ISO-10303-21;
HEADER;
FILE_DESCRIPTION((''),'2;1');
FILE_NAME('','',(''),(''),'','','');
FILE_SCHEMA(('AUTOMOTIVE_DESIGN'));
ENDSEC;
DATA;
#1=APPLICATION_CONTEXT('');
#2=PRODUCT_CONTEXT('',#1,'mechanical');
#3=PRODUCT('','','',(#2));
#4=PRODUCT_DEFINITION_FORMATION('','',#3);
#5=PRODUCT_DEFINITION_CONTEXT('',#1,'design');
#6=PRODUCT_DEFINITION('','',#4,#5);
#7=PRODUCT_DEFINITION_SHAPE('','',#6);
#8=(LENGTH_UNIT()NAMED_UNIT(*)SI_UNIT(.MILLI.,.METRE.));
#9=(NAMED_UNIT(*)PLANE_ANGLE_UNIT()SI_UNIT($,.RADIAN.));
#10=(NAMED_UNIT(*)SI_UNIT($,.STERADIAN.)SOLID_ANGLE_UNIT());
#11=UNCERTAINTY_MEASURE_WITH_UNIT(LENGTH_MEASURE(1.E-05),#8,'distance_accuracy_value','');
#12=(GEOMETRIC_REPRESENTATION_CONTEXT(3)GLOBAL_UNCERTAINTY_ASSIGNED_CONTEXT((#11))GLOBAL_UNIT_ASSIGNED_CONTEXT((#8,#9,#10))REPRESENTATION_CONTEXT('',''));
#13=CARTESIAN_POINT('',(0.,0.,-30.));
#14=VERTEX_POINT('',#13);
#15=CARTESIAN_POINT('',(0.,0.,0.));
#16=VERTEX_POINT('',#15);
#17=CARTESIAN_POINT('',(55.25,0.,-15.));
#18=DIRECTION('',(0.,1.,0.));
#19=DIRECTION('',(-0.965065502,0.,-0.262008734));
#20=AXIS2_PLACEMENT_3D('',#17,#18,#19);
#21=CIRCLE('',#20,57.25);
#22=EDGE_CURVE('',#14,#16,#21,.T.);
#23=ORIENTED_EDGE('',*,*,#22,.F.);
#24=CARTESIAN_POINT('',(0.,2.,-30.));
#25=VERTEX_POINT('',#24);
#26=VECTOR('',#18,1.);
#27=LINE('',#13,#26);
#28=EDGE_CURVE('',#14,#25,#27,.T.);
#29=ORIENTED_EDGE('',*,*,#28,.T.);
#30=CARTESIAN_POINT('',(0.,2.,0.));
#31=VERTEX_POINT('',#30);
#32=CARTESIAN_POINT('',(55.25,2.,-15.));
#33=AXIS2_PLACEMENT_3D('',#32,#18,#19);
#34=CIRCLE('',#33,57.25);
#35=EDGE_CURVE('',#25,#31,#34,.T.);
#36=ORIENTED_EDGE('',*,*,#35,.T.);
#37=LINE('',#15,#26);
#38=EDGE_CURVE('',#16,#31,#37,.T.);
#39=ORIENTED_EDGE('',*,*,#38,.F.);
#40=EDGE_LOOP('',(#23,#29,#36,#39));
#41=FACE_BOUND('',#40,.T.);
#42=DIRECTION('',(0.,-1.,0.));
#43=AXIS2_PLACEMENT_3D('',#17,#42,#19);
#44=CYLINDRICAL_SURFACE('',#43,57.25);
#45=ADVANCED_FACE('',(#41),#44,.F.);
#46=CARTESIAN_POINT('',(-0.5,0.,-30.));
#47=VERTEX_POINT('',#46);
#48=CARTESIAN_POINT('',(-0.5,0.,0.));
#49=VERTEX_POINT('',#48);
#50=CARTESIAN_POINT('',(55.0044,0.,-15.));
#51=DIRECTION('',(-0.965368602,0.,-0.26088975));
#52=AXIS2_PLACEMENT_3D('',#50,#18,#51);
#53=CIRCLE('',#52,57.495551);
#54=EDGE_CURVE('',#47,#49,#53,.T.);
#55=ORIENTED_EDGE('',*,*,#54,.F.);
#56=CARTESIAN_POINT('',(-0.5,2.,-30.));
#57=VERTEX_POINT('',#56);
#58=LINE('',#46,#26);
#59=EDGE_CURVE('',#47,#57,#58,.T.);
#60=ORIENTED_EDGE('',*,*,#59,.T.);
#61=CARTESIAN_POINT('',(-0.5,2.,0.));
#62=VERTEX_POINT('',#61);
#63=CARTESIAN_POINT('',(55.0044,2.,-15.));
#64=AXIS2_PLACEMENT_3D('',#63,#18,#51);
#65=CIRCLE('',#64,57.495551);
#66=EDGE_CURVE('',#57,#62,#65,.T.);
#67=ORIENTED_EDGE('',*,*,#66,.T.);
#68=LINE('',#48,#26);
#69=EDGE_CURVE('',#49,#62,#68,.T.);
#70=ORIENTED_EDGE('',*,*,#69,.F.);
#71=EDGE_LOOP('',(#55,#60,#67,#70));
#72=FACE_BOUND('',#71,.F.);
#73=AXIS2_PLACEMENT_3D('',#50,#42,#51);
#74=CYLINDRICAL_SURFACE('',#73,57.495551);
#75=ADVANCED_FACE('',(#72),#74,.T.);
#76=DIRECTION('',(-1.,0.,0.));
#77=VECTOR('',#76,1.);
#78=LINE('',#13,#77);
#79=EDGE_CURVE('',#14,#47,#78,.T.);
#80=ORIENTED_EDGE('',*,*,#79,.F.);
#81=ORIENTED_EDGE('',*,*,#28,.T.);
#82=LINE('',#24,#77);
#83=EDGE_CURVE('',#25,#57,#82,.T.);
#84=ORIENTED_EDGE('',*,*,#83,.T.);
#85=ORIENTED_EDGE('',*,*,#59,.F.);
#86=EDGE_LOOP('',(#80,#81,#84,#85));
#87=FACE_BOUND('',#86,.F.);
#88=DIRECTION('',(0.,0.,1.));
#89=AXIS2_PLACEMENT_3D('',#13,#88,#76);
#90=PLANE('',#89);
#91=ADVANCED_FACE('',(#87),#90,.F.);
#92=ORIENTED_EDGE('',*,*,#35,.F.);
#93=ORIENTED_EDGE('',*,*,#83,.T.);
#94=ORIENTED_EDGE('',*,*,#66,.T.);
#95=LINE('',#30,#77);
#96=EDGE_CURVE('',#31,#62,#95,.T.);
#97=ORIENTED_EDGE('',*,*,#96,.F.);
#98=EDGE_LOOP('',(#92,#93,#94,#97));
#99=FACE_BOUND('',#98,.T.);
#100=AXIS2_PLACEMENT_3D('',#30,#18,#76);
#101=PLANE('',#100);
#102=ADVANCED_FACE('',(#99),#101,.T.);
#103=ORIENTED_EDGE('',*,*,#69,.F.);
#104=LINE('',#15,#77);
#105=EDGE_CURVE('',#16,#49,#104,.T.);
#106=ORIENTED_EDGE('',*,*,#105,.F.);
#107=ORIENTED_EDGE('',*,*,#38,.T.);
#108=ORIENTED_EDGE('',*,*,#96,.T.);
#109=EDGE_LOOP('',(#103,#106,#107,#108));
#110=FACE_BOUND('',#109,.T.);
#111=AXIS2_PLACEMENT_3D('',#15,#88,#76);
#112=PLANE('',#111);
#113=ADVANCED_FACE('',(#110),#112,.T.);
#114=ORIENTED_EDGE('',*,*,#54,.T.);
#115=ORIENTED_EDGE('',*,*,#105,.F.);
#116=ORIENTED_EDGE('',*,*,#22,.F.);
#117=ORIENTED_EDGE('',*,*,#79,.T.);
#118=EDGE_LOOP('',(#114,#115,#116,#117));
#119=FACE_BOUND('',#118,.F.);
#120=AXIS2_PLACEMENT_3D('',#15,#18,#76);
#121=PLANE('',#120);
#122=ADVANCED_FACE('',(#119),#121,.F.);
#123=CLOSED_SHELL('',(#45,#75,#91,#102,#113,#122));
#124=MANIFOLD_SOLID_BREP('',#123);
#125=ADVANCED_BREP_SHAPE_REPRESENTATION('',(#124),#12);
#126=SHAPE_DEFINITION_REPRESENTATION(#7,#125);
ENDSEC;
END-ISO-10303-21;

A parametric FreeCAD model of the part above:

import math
import FreeCAD as App
import Part
import Sketcher

V = App.Vector

doc = App.newDocument("Part")
body = doc.addObject("PartDesign::Body", "Body")

# Sketch on XZ plane
sketch1 = body.newObject("Sketcher::SketchObject", "Sketch")
sketch1.AttachmentSupport = (doc.getObject("XZ_Plane"), [""])
sketch1.MapMode = "FlatFace"
sketch1.addGeometry([
    Part.ArcOfCircle(Part.Circle(V(55.2, -15, 0), V(0, 0, 1), 57.2), math.radians(165), math.radians(195)),
    Part.LineSegment(V(0, -30, 0), V(-0.5, -30, 0)),
    Part.ArcOfCircle(Part.Circle(V(55, -15, 0), V(0, 0, 1), 57.5), math.radians(165), math.radians(195)),
    Part.LineSegment(V(-0.5, 0, 0), V(0, 0, 0)),
], False)
sketch1.addConstraint([
    Sketcher.Constraint("Coincident", 0, 2, 1, 1),
    Sketcher.Constraint("Coincident", 1, 2, 2, 2),
    Sketcher.Constraint("Coincident", 2, 1, 3, 1),
    Sketcher.Constraint("Coincident", 3, 2, 0, 1),
    Sketcher.Constraint("Horizontal", 1),
    Sketcher.Constraint("Horizontal", 3),
    Sketcher.Constraint("Coincident", 3, 2, -1, 1),
    Sketcher.Constraint("PointOnObject", 0, 2, -2),
    Sketcher.Constraint("Horizontal", 0, 3, 2, 3),
    Sketcher.Constraint("DistanceX", 1, 2, 1, 1, 0.5),
    Sketcher.Constraint("DistanceY", 0, 2, -1, 1, 30.0),
    Sketcher.Constraint("Radius", 0, 57.25),
    Sketcher.Constraint("Radius", 2, 57.4956),
])
pad1 = body.newObject("PartDesign::Pad", "Pad")
pad1.Profile = sketch1
pad1.Length = 2
pad1.Reversed = True

doc.recompute()
